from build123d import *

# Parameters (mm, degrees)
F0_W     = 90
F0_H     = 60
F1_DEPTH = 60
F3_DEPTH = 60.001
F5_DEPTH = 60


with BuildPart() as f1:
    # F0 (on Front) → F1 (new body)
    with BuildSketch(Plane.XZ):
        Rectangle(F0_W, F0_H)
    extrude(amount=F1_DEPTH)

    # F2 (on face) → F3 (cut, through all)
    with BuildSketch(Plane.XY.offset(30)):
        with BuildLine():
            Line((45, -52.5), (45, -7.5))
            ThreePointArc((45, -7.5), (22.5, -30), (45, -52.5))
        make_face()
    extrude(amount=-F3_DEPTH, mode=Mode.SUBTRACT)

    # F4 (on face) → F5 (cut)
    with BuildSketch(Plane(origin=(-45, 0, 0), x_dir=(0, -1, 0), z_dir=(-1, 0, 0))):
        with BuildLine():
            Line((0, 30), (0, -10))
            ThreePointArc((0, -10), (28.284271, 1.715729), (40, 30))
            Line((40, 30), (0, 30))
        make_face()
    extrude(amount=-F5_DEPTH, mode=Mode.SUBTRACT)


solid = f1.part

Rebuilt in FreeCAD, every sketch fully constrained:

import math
import FreeCAD as App
import Part
import Sketcher
from FreeCAD import Vector
Q = App.Units.Quantity


def add_polygon(sketch, points):
    """Adds a closed chain of lines whose ends are joined by coincident constraints."""
    first, n = sketch.GeometryCount, len(points)
    for a, b in zip(points, points[1:] + points[:1]):
        sketch.addGeometry(Part.LineSegment(App.Vector(*a, 0), App.Vector(*b, 0)), False)
    for i in range(n):
        sketch.addConstraint(Sketcher.Constraint("Coincident", first + i, 2, first + (i + 1) % n, 1))

doc = App.newDocument("Part")
body = doc.addObject("PartDesign::Body", "Body")

sketch1 = body.newObject("Sketcher::SketchObject", "Sketch")
sketch1.AttachmentSupport = (doc.getObject("XZ_Plane"), [""])
sketch1.MapMode = "FlatFace"
add_polygon(sketch1, [(-45, 30), (-45, -30), (45, -30), (45, 30)])
sketch1.addConstraint(Sketcher.Constraint("Vertical", 0))
sketch1.addConstraint(Sketcher.Constraint("Horizontal", 1))
sketch1.addConstraint(Sketcher.Constraint("Vertical", 2))
sketch1.addConstraint(Sketcher.Constraint("Horizontal", 3))
sketch1.addConstraint(Sketcher.Constraint("Symmetric", 0, 2, 2, 2, -1, 1))
sketch1.addConstraint(Sketcher.Constraint("DistanceX", 1, 1, 1, 2, Q("90 mm")))
sketch1.addConstraint(Sketcher.Constraint("DistanceY", 0, 2, 0, 1, Q("60 mm")))
pad1 = body.newObject("PartDesign::Pad", "Pad")
pad1.Profile = sketch1
pad1.Length = 60

sketch2 = body.newObject("Sketcher::SketchObject", "Sketch001")
sketch2.AttachmentSupport = (doc.getObject("XY_Plane"), [""])
sketch2.MapMode = "FlatFace"
sketch2.AttachmentOffset = App.Placement(Vector(0, 0, 30), App.Rotation())
sketch2.addGeometry(Part.LineSegment(Vector(45, -52, 0), Vector(45, -8, 0)), False)
sketch2.addGeometry(Part.ArcOfCircle(Part.Circle(Vector(45, -30, 0), Vector(0, 0, 1), 22), math.radians(90), math.radians(270)), False)
sketch2.addConstraint(Sketcher.Constraint("Coincident", 0, 1, 1, 2))
sketch2.addConstraint(Sketcher.Constraint("Coincident", 1, 1, 0, 2))
sketch2.addConstraint(Sketcher.Constraint("Vertical", 0))
sketch2.addConstraint(Sketcher.Constraint("Vertical", 1, 3, 0, 1))
sketch2.addConstraint(Sketcher.Constraint("Radius", 1, Q("22.5 mm")))
sketch2.addConstraint(Sketcher.Constraint("DistanceX", -1, 1, 1, 3, Q("45 mm")))
sketch2.addConstraint(Sketcher.Constraint("DistanceY", 1, 3, -1, 1, Q("30 mm")))
pocket1 = body.newObject("PartDesign::Pocket", "Pocket")
pocket1.Profile = sketch2
pocket1.Type = "ThroughAll"

sketch3 = body.newObject("Sketcher::SketchObject", "Sketch002")
sketch3.AttachmentSupport = (doc.getObject("YZ_Plane"), [""])
sketch3.MapMode = "FlatFace"
sketch3.AttachmentOffset = App.Placement(Vector(0, 0, -45), App.Rotation())
sketch3.addGeometry(Part.LineSegment(Vector(0, 30, 0), Vector(0, -10, 0)), False)
sketch3.addGeometry(Part.ArcOfCircle(Part.Circle(Vector(0, 30, 0), Vector(0, 0, 1), 40), math.radians(-180), math.radians(-90)), False)
sketch3.addGeometry(Part.LineSegment(Vector(-40, 30, 0), Vector(0, 30, 0)), False)
sketch3.addConstraint(Sketcher.Constraint("Coincident", 0, 2, 1, 2))
sketch3.addConstraint(Sketcher.Constraint("Coincident", 1, 1, 2, 1))
sketch3.addConstraint(Sketcher.Constraint("Coincident", 2, 2, 0, 1))
sketch3.addConstraint(Sketcher.Constraint("Vertical", 0))
sketch3.addConstraint(Sketcher.Constraint("Horizontal", 2))
sketch3.addConstraint(Sketcher.Constraint("Coincident", 2, 2, 1, 3))
sketch3.addConstraint(Sketcher.Constraint("PointOnObject", 1, 3, -2))
sketch3.addConstraint(Sketcher.Constraint("Radius", 1, Q("40.000001 mm")))
sketch3.addConstraint(Sketcher.Constraint("DistanceY", -1, 1, 1, 3, Q("30.000001 mm")))
pocket2 = body.newObject("PartDesign::Pocket", "Pocket001")
pocket2.Profile = sketch3
pocket2.Length = 60
pocket2.Reversed = True

doc.recompute()
